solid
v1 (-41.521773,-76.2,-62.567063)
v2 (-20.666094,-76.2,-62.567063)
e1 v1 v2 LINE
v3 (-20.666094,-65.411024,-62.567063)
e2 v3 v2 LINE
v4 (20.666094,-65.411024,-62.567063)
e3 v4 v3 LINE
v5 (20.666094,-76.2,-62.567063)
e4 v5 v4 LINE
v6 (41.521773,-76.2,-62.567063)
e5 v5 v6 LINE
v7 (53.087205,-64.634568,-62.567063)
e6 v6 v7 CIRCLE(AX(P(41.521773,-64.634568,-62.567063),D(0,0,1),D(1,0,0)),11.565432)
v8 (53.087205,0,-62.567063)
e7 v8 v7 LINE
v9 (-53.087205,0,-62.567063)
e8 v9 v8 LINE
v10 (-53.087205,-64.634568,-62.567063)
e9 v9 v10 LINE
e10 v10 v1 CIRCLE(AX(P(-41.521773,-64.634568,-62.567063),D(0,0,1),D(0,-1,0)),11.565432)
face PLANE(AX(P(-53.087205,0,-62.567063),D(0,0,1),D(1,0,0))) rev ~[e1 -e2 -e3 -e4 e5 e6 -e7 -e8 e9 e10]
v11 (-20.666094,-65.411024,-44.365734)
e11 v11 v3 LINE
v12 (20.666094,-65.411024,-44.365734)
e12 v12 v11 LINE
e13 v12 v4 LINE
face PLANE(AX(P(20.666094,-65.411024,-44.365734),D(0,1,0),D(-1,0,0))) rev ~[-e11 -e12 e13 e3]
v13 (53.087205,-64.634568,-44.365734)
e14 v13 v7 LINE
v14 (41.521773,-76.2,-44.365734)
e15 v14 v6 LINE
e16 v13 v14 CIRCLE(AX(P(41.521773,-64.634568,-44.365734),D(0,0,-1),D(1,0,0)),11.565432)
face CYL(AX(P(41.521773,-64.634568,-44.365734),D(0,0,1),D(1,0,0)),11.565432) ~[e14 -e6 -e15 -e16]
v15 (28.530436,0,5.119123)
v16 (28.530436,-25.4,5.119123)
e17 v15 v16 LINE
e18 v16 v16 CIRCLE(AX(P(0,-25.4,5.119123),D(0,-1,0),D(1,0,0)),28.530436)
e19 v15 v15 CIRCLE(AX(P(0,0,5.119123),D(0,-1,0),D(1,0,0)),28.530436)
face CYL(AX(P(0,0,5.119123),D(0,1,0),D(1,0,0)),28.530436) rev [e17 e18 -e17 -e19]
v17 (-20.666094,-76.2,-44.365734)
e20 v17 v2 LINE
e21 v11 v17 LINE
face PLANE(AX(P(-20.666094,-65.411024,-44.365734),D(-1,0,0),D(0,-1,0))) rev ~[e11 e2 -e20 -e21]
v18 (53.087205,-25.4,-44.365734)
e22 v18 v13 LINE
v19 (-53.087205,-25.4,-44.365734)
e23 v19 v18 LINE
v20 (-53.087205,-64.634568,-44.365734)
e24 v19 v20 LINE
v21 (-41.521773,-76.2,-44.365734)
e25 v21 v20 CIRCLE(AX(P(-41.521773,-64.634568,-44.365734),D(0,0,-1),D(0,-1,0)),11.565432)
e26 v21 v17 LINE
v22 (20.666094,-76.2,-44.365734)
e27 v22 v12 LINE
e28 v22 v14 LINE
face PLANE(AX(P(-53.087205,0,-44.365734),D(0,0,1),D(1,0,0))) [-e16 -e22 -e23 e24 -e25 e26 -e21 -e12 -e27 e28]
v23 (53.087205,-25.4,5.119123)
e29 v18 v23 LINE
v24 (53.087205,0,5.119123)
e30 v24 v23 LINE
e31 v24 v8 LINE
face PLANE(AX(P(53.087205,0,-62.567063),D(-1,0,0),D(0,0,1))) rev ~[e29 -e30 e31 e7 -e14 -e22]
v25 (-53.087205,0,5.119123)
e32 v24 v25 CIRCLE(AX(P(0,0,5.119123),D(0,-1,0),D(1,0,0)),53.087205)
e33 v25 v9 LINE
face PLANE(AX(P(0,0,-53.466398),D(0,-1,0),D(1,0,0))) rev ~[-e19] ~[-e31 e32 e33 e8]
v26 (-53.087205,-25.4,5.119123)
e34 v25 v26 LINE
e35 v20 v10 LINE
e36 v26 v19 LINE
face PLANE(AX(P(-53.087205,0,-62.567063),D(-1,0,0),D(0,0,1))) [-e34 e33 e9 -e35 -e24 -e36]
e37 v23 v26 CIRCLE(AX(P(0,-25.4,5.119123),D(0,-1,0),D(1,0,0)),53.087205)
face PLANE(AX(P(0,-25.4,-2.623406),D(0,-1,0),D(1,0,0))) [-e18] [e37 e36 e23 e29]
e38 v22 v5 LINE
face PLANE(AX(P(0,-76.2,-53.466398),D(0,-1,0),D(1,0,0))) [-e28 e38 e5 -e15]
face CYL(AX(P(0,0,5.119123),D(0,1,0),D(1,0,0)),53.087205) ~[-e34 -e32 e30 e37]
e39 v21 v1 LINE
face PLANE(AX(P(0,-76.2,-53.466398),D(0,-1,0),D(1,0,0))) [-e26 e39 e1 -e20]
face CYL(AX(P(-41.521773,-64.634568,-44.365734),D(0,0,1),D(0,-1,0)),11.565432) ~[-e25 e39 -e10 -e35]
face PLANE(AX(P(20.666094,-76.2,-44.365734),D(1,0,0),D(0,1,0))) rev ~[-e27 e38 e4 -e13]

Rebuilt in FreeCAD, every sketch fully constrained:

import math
import FreeCAD as App
import Part
import Sketcher
Q = App.Units.Quantity

doc = App.newDocument("Part")
body = doc.addObject("PartDesign::Body", "Body")

# Sketch on XZ plane
sketch1 = body.newObject("Sketcher::SketchObject", "Sketch")
sketch1.AttachmentSupport = (doc.getObject("XZ_Plane"), [""])
sketch1.MapMode = "FlatFace"
sketch1.addGeometry([
    Part.LineSegment(App.Vector(-53, -44, 0), App.Vector(53, -44, 0)),  # 0
    Part.LineSegment(App.Vector(53, -44, 0), App.Vector(53, 5, 0)),  # 1
    Part.ArcOfCircle(Part.Circle(App.Vector(0, 5, 0), App.Vector(0, 0, 1), 53), math.radians(0), math.radians(180)),  # 2
    Part.LineSegment(App.Vector(-53, 5, 0), App.Vector(-53, -44, 0)),  # 3
    Part.Circle(App.Vector(0, 5, 0), App.Vector(0, 0, 1), 29),  # 4
], False)
sketch1.addConstraint([
    Sketcher.Constraint("Coincident", 0, 2, 1, 1),
    Sketcher.Constraint("Tangent", 1, 2, 2, 1),
    Sketcher.Constraint("Tangent", 2, 2, 3, 1),
    Sketcher.Constraint("Coincident", 3, 2, 0, 1),
    Sketcher.Constraint("Horizontal", 0),
    Sketcher.Constraint("Vertical", 1),
    Sketcher.Constraint("Vertical", 3),
    Sketcher.Constraint("Coincident", 4, 3, 2, 3),
    Sketcher.Constraint("PointOnObject", 2, 3, -2),
    Sketcher.Constraint("Diameter", 4, 57.060871),
    Sketcher.Constraint("Radius", 2, 53.087205),
    Sketcher.Constraint("DistanceY", 1, 1, 1, 2, 49.484857),
    Sketcher.Constraint("DistanceY", -1, 1, 2, 3, 5.119123),
])
pad1 = body.newObject("PartDesign::Pad", "Pad")
pad1.Profile = sketch1
pad1.Length = Q("1 in")

# Sketch on XZ plane
sketch2 = body.newObject("Sketcher::SketchObject", "Sketch001")
sketch2.AttachmentSupport = (doc.getObject("XZ_Plane"), [""])
sketch2.MapMode = "FlatFace"
sketch2.addGeometry([
    Part.LineSegment(App.Vector(-53, -44, 0), App.Vector(-53, -63, 0)),
    Part.LineSegment(App.Vector(-53, -63, 0), App.Vector(53, -63, 0)),
    Part.LineSegment(App.Vector(53, -63, 0), App.Vector(53, -44, 0)),
    Part.LineSegment(App.Vector(53, -44, 0), App.Vector(-53, -44, 0)),
], False)
sketch2.addConstraint([
    Sketcher.Constraint("Coincident", 0, 2, 1, 1),
    Sketcher.Constraint("Coincident", 1, 2, 2, 1),
    Sketcher.Constraint("Coincident", 2, 2, 3, 1),
    Sketcher.Constraint("Coincident", 3, 2, 0, 1),
    Sketcher.Constraint("Vertical", 0),
    Sketcher.Constraint("Horizontal", 1),
    Sketcher.Constraint("Vertical", 2),
    Sketcher.Constraint("Horizontal", 3),
    Sketcher.Constraint("DistanceX", 1, 1, 1, 2, 106.174409),
    Sketcher.Constraint("DistanceY", 0, 2, 0, 1, 18.201329),
    Sketcher.Constraint("DistanceX", 0, 2, -1, 1, 53.087205),
    Sketcher.Constraint("DistanceY", 0, 2, -1, 1, 62.567063),
])
pad2 = body.newObject("PartDesign::Pad", "Pad001")
pad2.Profile = sketch2
pad2.Length = Q("3 in")

# Sketch on XY plane
sketch3 = body.newObject("Sketcher::SketchObject", "Sketch002")
sketch3.AttachmentSupport = (doc.getObject("XY_Plane"), [""])
sketch3.MapMode = "FlatFace"
sketch3.AttachmentOffset = App.Placement(App.Vector(0, 0, -44.365734), App.Rotation())
sketch3.addGeometry([
    Part.LineSegment(App.Vector(53, -76, 0), App.Vector(53, -65, 0)),  # 0
    Part.ArcOfCircle(Part.Circle(App.Vector(42, -65, 0), App.Vector(0, 0, 1), 12), math.radians(-90), math.radians(0)),  # 1
    Part.LineSegment(App.Vector(42, -76, 0), App.Vector(53, -76, 0)),  # 2
    Part.ArcOfCircle(Part.Circle(App.Vector(-42, -65, 0), App.Vector(0, 0, 1), 12), math.radians(180), math.radians(270)),  # 3
    Part.LineSegment(App.Vector(-53, -65, 0), App.Vector(-53, -76, 0)),  # 4
    Part.LineSegment(App.Vector(-53, -76, 0), App.Vector(-42, -76, 0)),  # 5
    Part.LineSegment(App.Vector(21, -76, 0), App.Vector(21, -65, 0)),  # 6
    Part.LineSegment(App.Vector(21, -65, 0), App.Vector(-21, -65, 0)),  # 7
    Part.LineSegment(App.Vector(-21, -65, 0), App.Vector(-21, -76, 0)),  # 8
    Part.LineSegment(App.Vector(-21, -76, 0), App.Vector(21, -76, 0)),  # 9
], False)
sketch3.addConstraint([
    Sketcher.Constraint("Tangent", 0, 2, 1, 2),
    Sketcher.Constraint("Tangent", 1, 1, 2, 1),
    Sketcher.Constraint("Coincident", 2, 2, 0, 1),
    Sketcher.Constraint("Tangent", 3, 1, 4, 1),
    Sketcher.Constraint("Coincident", 4, 2, 5, 1),
    Sketcher.Constraint("Tangent", 5, 2, 3, 2),
    Sketcher.Constraint("Coincident", 6, 2, 7, 1),
    Sketcher.Constraint("Coincident", 7, 2, 8, 1),
    Sketcher.Constraint("Coincident", 8, 2, 9, 1),
    Sketcher.Constraint("Coincident", 9, 2, 6, 1),
    Sketcher.Constraint("Vertical", 0),
    Sketcher.Constraint("Horizontal", 2),
    Sketcher.Constraint("Vertical", 4),
    Sketcher.Constraint("Horizontal", 5),
    Sketcher.Constraint("Vertical", 6),
    Sketcher.Constraint("Horizontal", 7),
    Sketcher.Constraint("Vertical", 8),
    Sketcher.Constraint("Horizontal", 9),
    Sketcher.Constraint("Equal", 1, 3),
    Sketcher.Constraint("Symmetric", 1, 3, 3, 3, -2),
    Sketcher.Constraint("Horizontal", 5, 2, 8, 2),
    Sketcher.Constraint("DistanceY", 1, 1, -1, 1, Q("3 in")),
    Sketcher.Constraint("Radius", 1, 11.565432),
    Sketcher.Constraint("DistanceX", 7, 2, 7, 1, 41.332189),
    Sketcher.Constraint("DistanceY", 6, 1, 6, 2, 10.788976),
    Sketcher.Constraint("DistanceX", 3, 1, 0, 2, 106.174409),
    Sketcher.Constraint("DistanceX", 6, 2, 1, 3, 20.855678),
])
pocket1 = body.newObject("PartDesign::Pocket", "Pocket")
pocket1.Profile = sketch3
pocket1.Type = "ThroughAll"

doc.recompute()
